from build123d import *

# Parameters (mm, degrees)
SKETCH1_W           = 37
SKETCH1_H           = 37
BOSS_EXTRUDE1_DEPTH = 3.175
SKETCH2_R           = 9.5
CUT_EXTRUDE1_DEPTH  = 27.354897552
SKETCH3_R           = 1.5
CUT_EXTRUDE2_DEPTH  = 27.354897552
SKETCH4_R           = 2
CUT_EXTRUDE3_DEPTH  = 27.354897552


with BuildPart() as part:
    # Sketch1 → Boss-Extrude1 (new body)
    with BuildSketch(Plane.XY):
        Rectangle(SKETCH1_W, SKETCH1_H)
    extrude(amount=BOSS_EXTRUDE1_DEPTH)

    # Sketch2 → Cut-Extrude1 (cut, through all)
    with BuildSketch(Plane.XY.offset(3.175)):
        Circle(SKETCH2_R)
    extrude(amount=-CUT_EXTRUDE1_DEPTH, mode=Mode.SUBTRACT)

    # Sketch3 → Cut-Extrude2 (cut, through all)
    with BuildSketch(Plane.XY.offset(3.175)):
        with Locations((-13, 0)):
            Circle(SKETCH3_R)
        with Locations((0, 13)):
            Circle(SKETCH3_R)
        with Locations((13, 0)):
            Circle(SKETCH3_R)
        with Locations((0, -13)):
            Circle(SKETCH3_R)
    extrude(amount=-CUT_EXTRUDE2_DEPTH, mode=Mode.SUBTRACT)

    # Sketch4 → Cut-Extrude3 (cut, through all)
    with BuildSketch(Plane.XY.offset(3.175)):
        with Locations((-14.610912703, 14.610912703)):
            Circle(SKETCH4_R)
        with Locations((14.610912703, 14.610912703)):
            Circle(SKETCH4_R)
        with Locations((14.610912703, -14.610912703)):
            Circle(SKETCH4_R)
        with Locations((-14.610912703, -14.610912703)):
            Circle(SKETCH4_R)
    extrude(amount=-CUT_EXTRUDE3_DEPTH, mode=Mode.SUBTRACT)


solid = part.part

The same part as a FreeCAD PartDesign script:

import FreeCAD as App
import Part
import Sketcher

V = App.Vector


def add_polygon(sketch, points):
    """Adds a closed chain of lines whose ends are joined by coincident constraints."""
    first, n = sketch.GeometryCount, len(points)
    for a, b in zip(points, points[1:] + points[:1]):
        sketch.addGeometry(Part.LineSegment(App.Vector(*a, 0), App.Vector(*b, 0)), False)
    for i in range(n):
        sketch.addConstraint(Sketcher.Constraint("Coincident", first + i, 2, first + (i + 1) % n, 1))

doc = App.newDocument("Part")
params = doc.addObject("Spreadsheet::Sheet", "Params")
for row, (alias, value) in enumerate([
    ("sketch1_width", "37 mm"),
    ("pad1_length", "3.175 mm"),
    ("sketch2_diameter", "19 mm"),
    ("sketch3_diameter", "3 mm"),
    ("sketch4_diameter", "4 mm"),
], start=1):
    params.set(f"A{row}", alias)
    params.set(f"B{row}", "=" + value)
    params.setAlias(f"B{row}", alias)

body = doc.addObject("PartDesign::Body", "Body")

sketch1 = body.newObject("Sketcher::SketchObject", "Sketch")
sketch1.AttachmentSupport = (doc.getObject("XY_Plane"), [""])
sketch1.MapMode = "FlatFace"
add_polygon(sketch1, [(-18, 18), (-18, -18), (18, -18), (18, 18)])
sketch1.addConstraint([
    Sketcher.Constraint("Vertical", 0),
    Sketcher.Constraint("Horizontal", 1),
    Sketcher.Constraint("Vertical", 2),
    Sketcher.Constraint("Horizontal", 3),
    Sketcher.Constraint("Symmetric", 0, 2, 2, 2, -1, 1),
    Sketcher.Constraint("Equal", 3, 0),
    Sketcher.Constraint("DistanceX", 1, 1, 1, 2, 37.0),
])
sketch1.setExpression("Constraints[10]", "Params.sketch1_width")
pad1 = body.newObject("PartDesign::Pad", "Pad")
pad1.Profile = sketch1
pad1.setExpression("Length", "Params.pad1_length")

sketch2 = body.newObject("Sketcher::SketchObject", "Sketch001")
sketch2.AttachmentSupport = (doc.getObject("XY_Plane"), [""])
sketch2.MapMode = "FlatFace"
sketch2.AttachmentOffset = App.Placement(V(0, 0, 3.175), App.Rotation())
sketch2.addGeometry(Part.Circle(V(0, 0, 0), V(0, 0, 1), 10), False)
sketch2.addConstraint([
    Sketcher.Constraint("Coincident", 0, 3, -1, 1),
    Sketcher.Constraint("Diameter", 0, 19.0),
])
sketch2.setExpression("Constraints[1]", "Params.sketch2_diameter")
pocket1 = body.newObject("PartDesign::Pocket", "Pocket")
pocket1.Profile = sketch2
pocket1.Type = "ThroughAll"

sketch3 = body.newObject("Sketcher::SketchObject", "Sketch002")
sketch3.AttachmentSupport = (doc.getObject("XY_Plane"), [""])
sketch3.MapMode = "FlatFace"
sketch3.AttachmentOffset = App.Placement(V(0, 0, 3.175), App.Rotation())
sketch3.addGeometry([
    Part.Circle(V(-13, 0, 0), V(0, 0, 1), 1.5),
    Part.Circle(V(0, 13, 0), V(0, 0, 1), 1.5),
    Part.Circle(V(13, 0, 0), V(0, 0, 1), 1.5),
    Part.Circle(V(0, -13, 0), V(0, 0, 1), 1.5),
], False)
sketch3.addConstraint([
    Sketcher.Constraint("Equal", 0, 1),
    Sketcher.Constraint("Equal", 1, 2),
    Sketcher.Constraint("Equal", 2, 3),
    Sketcher.Constraint("Symmetric", 0, 3, 2, 3, -1, 1),
    Sketcher.Constraint("Symmetric", 1, 3, 3, 3, -1, 1),
    Sketcher.Constraint("PointOnObject", 0, 3, -1),
    Sketcher.Constraint("PointOnObject", 1, 3, -2),
    Sketcher.Constraint("Diameter", 0, 3.0),
    Sketcher.Constraint("DistanceX", 0, 3, -1, 1, 13.0),
    Sketcher.Constraint("DistanceY", -1, 1, 1, 3, 13.0),
])
sketch3.setExpression("Constraints[7]", "Params.sketch3_diameter")
pocket2 = body.newObject("PartDesign::Pocket", "Pocket001")
pocket2.Profile = sketch3
pocket2.Type = "ThroughAll"

sketch4 = body.newObject("Sketcher::SketchObject", "Sketch003")
sketch4.AttachmentSupport = (doc.getObject("XY_Plane"), [""])
sketch4.MapMode = "FlatFace"
sketch4.AttachmentOffset = App.Placement(V(0, 0, 3.175), App.Rotation())
sketch4.addGeometry([
    Part.Circle(V(-14.6, 14.6, 0), V(0, 0, 1), 2),
    Part.Circle(V(14.6, 14.6, 0), V(0, 0, 1), 2),
    Part.Circle(V(14.6, -14.6, 0), V(0, 0, 1), 2),
    Part.Circle(V(-14.6, -14.6, 0), V(0, 0, 1), 2),
], False)
sketch4.addConstraint([
    Sketcher.Constraint("Equal", 0, 1),
    Sketcher.Constraint("Equal", 1, 2),
    Sketcher.Constraint("Equal", 2, 3),
    Sketcher.Constraint("Symmetric", 0, 3, 2, 3, -1, 1),
    Sketcher.Constraint("Symmetric", 1, 3, 3, 3, -1, 1),
    Sketcher.Constraint("Symmetric", 0, 3, 1, 3, -2),
    Sketcher.Constraint("Diameter", 0, 4.0),
    Sketcher.Constraint("DistanceX", 0, 3, -1, 1, 14.610913),
    Sketcher.Constraint("DistanceY", -1, 1, 0, 3, 14.610913),
])
sketch4.setExpression("Constraints[6]", "Params.sketch4_diameter")
pocket3 = body.newObject("PartDesign::Pocket", "Pocket002")
pocket3.Profile = sketch4
pocket3.Type = "ThroughAll"

doc.recompute()
